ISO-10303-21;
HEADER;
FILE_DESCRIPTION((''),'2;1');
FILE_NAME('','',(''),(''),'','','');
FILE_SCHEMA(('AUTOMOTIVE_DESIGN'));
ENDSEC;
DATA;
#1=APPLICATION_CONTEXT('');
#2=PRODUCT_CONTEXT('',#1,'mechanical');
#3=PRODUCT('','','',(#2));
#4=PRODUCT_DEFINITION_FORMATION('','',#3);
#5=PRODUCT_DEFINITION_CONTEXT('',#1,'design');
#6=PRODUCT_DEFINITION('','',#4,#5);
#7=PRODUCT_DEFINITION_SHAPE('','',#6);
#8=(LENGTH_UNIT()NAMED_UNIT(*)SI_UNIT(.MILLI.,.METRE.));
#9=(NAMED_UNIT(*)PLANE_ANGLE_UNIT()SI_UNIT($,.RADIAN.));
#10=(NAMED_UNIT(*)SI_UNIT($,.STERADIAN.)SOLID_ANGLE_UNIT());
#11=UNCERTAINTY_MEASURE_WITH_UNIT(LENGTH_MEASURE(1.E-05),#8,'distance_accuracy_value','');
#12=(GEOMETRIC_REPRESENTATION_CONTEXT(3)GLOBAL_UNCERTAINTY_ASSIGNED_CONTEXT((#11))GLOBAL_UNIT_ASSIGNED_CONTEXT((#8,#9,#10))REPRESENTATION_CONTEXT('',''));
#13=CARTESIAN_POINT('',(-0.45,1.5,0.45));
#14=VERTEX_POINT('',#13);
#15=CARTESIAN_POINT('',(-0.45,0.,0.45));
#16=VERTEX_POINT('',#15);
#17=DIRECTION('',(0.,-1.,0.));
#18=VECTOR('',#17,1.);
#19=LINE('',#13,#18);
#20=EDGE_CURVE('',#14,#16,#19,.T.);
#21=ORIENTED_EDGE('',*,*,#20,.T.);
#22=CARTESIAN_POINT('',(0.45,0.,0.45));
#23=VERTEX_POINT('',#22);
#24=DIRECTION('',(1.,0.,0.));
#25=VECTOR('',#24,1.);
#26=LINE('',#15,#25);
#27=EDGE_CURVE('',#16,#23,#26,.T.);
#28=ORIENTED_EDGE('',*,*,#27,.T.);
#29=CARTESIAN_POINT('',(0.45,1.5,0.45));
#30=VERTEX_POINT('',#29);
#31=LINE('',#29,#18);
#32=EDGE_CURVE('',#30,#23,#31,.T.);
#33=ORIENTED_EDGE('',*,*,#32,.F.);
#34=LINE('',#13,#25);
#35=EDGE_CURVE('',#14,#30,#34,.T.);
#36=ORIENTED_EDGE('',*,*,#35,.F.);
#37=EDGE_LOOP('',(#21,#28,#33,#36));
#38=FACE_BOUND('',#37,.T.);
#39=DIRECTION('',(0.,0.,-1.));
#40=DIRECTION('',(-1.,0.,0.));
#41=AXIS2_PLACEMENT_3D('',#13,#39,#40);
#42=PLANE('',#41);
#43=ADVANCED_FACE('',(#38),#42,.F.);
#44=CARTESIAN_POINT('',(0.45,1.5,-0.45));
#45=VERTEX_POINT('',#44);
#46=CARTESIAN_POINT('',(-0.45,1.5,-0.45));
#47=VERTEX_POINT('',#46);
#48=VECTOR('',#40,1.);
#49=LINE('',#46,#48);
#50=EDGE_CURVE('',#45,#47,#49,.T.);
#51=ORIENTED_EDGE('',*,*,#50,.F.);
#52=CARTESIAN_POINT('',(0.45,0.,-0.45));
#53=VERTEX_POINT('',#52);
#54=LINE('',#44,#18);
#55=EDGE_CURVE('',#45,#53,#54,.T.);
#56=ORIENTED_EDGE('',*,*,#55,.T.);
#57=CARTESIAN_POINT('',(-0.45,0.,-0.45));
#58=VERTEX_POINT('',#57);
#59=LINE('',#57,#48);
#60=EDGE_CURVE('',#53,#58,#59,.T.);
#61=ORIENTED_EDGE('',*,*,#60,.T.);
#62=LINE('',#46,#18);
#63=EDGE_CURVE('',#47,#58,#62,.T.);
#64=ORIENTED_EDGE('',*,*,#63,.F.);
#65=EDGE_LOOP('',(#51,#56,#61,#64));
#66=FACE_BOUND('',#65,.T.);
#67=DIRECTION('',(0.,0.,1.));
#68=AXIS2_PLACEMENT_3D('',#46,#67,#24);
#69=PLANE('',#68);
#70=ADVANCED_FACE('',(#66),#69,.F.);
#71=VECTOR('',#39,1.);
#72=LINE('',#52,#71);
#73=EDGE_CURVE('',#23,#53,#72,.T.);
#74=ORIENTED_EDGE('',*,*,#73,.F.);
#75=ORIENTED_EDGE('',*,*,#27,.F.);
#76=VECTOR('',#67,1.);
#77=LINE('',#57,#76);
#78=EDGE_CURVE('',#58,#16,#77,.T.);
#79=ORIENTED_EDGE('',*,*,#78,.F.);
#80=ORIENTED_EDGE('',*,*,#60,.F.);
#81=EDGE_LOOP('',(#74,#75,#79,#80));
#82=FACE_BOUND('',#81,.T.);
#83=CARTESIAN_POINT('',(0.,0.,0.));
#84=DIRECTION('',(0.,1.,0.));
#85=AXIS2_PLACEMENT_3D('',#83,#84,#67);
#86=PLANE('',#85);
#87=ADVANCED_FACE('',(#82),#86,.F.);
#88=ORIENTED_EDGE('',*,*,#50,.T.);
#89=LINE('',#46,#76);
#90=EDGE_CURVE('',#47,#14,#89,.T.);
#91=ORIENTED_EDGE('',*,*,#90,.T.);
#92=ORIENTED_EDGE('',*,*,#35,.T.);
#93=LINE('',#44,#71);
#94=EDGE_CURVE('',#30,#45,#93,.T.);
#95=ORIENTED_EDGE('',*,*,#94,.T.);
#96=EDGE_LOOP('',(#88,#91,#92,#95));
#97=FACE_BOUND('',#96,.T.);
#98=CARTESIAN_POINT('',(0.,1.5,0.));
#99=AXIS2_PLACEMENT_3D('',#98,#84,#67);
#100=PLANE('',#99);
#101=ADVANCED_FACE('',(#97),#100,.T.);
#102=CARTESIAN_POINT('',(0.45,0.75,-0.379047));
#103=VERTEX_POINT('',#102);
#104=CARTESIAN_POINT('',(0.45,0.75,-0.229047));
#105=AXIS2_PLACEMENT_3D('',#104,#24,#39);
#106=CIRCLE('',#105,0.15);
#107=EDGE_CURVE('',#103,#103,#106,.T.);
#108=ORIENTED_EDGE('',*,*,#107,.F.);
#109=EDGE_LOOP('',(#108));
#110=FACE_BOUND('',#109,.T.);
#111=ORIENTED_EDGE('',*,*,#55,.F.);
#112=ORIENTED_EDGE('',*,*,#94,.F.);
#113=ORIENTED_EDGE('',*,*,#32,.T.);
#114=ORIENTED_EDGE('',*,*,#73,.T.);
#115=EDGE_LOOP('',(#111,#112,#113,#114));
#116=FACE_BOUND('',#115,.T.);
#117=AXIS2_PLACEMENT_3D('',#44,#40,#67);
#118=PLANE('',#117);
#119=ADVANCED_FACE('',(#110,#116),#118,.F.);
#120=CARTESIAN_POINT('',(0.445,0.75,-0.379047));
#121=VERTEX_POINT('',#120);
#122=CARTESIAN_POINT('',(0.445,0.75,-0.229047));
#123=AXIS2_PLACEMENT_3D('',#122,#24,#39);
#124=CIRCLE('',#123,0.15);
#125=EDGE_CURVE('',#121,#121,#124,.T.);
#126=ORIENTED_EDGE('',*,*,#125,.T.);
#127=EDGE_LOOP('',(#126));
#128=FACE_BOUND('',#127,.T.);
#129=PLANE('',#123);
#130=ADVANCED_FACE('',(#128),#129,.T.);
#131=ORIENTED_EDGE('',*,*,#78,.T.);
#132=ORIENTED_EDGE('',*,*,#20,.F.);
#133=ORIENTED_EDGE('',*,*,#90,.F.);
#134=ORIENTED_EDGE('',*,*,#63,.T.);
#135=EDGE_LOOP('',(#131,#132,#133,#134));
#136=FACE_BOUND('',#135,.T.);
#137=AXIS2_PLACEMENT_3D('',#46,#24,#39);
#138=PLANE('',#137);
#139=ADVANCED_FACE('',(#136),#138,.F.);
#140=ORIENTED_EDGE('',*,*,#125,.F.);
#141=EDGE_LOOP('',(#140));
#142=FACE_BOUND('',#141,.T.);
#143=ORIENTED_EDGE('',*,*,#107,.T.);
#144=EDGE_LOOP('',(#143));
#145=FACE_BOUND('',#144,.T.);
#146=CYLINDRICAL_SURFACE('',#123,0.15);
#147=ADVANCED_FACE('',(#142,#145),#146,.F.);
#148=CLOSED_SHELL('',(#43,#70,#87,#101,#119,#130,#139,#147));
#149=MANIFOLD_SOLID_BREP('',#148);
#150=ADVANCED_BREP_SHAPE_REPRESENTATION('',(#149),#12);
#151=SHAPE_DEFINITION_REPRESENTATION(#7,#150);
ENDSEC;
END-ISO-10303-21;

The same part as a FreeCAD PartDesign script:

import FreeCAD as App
import Part
import Sketcher
from FreeCAD import Vector


def add_polygon(sketch, points):
    """Adds a closed chain of lines whose ends are joined by coincident constraints."""
    first, n = sketch.GeometryCount, len(points)
    for a, b in zip(points, points[1:] + points[:1]):
        sketch.addGeometry(Part.LineSegment(App.Vector(*a, 0), App.Vector(*b, 0)), False)
    for i in range(n):
        sketch.addConstraint(Sketcher.Constraint("Coincident", first + i, 2, first + (i + 1) % n, 1))

doc = App.newDocument("Part")
params = doc.addObject("Spreadsheet::Sheet", "Params")
for row, (alias, value) in enumerate([
    ("sketch1_width", "0.9 mm"),
    ("pad1_length", "1.5 mm"),
    ("sketch2_diameter", "0.3 mm"),
    ("pocket1_length", "0.005 mm"),
], start=1):
    params.set(f"A{row}", alias)
    params.set(f"B{row}", "=" + value)
    params.setAlias(f"B{row}", alias)

body = doc.addObject("PartDesign::Body", "Body")

# Sketch on XZ plane
sketch1 = body.newObject("Sketcher::SketchObject", "Sketch")
sketch1.AttachmentSupport = (doc.getObject("XZ_Plane"), [""])
sketch1.MapMode = "FlatFace"
add_polygon(sketch1, [(-0.45, -0.45), (-0.45, 0.45), (0.45, 0.45), (0.45, -0.45)])  # lines 0-3
sketch1.addConstraint(Sketcher.Constraint("Vertical", 0))
sketch1.addConstraint(Sketcher.Constraint("Horizontal", 1))
sketch1.addConstraint(Sketcher.Constraint("Vertical", 2))
sketch1.addConstraint(Sketcher.Constraint("Horizontal", 3))
sketch1.addConstraint(Sketcher.Constraint("Symmetric", 0, 2, 2, 2, -1, 1))
sketch1.addConstraint(Sketcher.Constraint("Equal", 3, 0))
sketch1.addConstraint(Sketcher.Constraint("DistanceX", 1, 1, 1, 2, 0.9))
sketch1.setExpression("Constraints[10]", "Params.sketch1_width")
pad1 = body.newObject("PartDesign::Pad", "Pad")
pad1.Profile = sketch1
pad1.setExpression("Length", "Params.pad1_length")
pad1.Reversed = True

# Sketch on YZ plane
sketch2 = body.newObject("Sketcher::SketchObject", "Sketch001")
sketch2.AttachmentSupport = (doc.getObject("YZ_Plane"), [""])
sketch2.MapMode = "FlatFace"
sketch2.AttachmentOffset = App.Placement(Vector(0, 0, 0.45), App.Rotation())
sketch2.addGeometry(Part.Circle(Vector(0.75, -0.229047, 0), Vector(0, 0, 1), 0.15), False)
sketch2.addConstraint(Sketcher.Constraint("Diameter", 0, 0.3))
sketch2.addConstraint(Sketcher.Constraint("DistanceX", -1, 1, 0, 3, 0.75))
sketch2.addConstraint(Sketcher.Constraint("DistanceY", 0, 3, -1, 1, 0.229047))
sketch2.setExpression("Constraints[0]", "Params.sketch2_diameter")
pocket1 = body.newObject("PartDesign::Pocket", "Pocket")
pocket1.Profile = sketch2
pocket1.setExpression("Length", "Params.pocket1_length")

doc.recompute()
